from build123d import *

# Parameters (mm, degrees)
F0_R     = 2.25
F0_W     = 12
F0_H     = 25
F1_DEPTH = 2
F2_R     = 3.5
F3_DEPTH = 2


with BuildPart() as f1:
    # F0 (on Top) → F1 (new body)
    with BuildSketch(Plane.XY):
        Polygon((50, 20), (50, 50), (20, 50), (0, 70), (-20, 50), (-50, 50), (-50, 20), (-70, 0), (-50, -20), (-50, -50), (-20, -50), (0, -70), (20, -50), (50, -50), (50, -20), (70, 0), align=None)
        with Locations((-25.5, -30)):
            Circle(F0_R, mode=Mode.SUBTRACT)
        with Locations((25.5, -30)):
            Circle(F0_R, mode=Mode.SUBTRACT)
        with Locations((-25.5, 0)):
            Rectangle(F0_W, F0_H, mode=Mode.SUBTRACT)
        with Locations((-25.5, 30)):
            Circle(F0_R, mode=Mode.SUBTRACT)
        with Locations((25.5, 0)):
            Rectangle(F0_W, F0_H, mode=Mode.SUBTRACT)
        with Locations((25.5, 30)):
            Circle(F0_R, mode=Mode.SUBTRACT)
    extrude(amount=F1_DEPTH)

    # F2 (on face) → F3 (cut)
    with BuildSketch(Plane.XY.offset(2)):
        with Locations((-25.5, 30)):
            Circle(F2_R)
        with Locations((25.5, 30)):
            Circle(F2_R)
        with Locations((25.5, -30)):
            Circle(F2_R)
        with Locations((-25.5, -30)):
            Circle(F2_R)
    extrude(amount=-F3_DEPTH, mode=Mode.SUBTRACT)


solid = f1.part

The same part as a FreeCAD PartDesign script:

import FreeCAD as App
import Part
import Sketcher
from FreeCAD import Vector
Q = App.Units.Quantity


def add_polygon(sketch, points):
    """Adds a closed chain of lines whose ends are joined by coincident constraints."""
    first, n = sketch.GeometryCount, len(points)
    for a, b in zip(points, points[1:] + points[:1]):
        sketch.addGeometry(Part.LineSegment(App.Vector(*a, 0), App.Vector(*b, 0)), False)
    for i in range(n):
        sketch.addConstraint(Sketcher.Constraint("Coincident", first + i, 2, first + (i + 1) % n, 1))

doc = App.newDocument("Part")
body = doc.addObject("PartDesign::Body", "Body")

sketch1 = body.newObject("Sketcher::SketchObject", "Sketch")
sketch1.AttachmentSupport = (doc.getObject("XY_Plane"), [""])
sketch1.MapMode = "FlatFace"
add_polygon(sketch1, [(50, 20), (50, 50), (20, 50), (0, 70), (-20, 50), (-50, 50), (-50, 20), (-70, 0), (-50, -20), (-50, -50), (-20, -50), (0, -70), (20, -50), (50, -50), (50, -20), (70, 0)])
sketch1.addGeometry(Part.Circle(Vector(-25.5, -30, 0), Vector(0, 0, 1), 2.2), False)
sketch1.addGeometry(Part.Circle(Vector(25.5, -30, 0), Vector(0, 0, 1), 2.2), False)
add_polygon(sketch1, [(-19.5, -12.5), (-31.5, -12.5), (-31.5, 12.5), (-19.5, 12.5)])
sketch1.addGeometry(Part.Circle(Vector(-25.5, 30, 0), Vector(0, 0, 1), 2.2), False)
add_polygon(sketch1, [(31.5, -12.5), (19.5, -12.5), (19.5, 12.5), (31.5, 12.5)])
sketch1.addGeometry(Part.Circle(Vector(25.5, 30, 0), Vector(0, 0, 1), 2.2), False)
sketch1.addConstraint(Sketcher.Constraint("Vertical", 0))
sketch1.addConstraint(Sketcher.Constraint("Horizontal", 1))
sketch1.addConstraint(Sketcher.Constraint("Horizontal", 4))
sketch1.addConstraint(Sketcher.Constraint("Vertical", 5))
sketch1.addConstraint(Sketcher.Constraint("Vertical", 8))
sketch1.addConstraint(Sketcher.Constraint("Horizontal", 9))
sketch1.addConstraint(Sketcher.Constraint("Horizontal", 12))
sketch1.addConstraint(Sketcher.Constraint("Vertical", 13))
sketch1.addConstraint(Sketcher.Constraint("Horizontal", 18))
sketch1.addConstraint(Sketcher.Constraint("Vertical", 19))
sketch1.addConstraint(Sketcher.Constraint("Horizontal", 20))
sketch1.addConstraint(Sketcher.Constraint("Vertical", 21))
sketch1.addConstraint(Sketcher.Constraint("Horizontal", 23))
sketch1.addConstraint(Sketcher.Constraint("Vertical", 24))
sketch1.addConstraint(Sketcher.Constraint("Horizontal", 25))
sketch1.addConstraint(Sketcher.Constraint("Vertical", 26))
sketch1.addConstraint(Sketcher.Constraint("Equal", 16, 17))
sketch1.addConstraint(Sketcher.Constraint("Equal", 17, 22))
sketch1.addConstraint(Sketcher.Constraint("Equal", 22, 27))
sketch1.addConstraint(Sketcher.Constraint("Symmetric", 17, 3, 22, 3, -1, 1))
sketch1.addConstraint(Sketcher.Constraint("Symmetric", 16, 3, 27, 3, -1, 1))
sketch1.addConstraint(Sketcher.Constraint("Symmetric", 0, 2, 8, 2, -1, 1))
sketch1.addConstraint(Sketcher.Constraint("Symmetric", 2, 2, 10, 2, -1, 1))
sketch1.addConstraint(Sketcher.Constraint("Symmetric", 3, 2, 11, 2, -1, 1))
sketch1.addConstraint(Sketcher.Constraint("Symmetric", 5, 2, 13, 2, -1, 1))
sketch1.addConstraint(Sketcher.Constraint("Symmetric", 6, 2, 14, 2, -1, 1))
sketch1.addConstraint(Sketcher.Constraint("Symmetric", 20, 2, 23, 2, -1, 1))
sketch1.addConstraint(Sketcher.Constraint("Symmetric", 18, 2, 25, 2, -1, 1))
sketch1.addConstraint(Sketcher.Constraint("Symmetric", 16, 3, 17, 3, -2))
sketch1.addConstraint(Sketcher.Constraint("Symmetric", 1, 2, 3, 2, -2))
sketch1.addConstraint(Sketcher.Constraint("Symmetric", 7, 2, 13, 2, -2))
sketch1.addConstraint(Sketcher.Constraint("PointOnObject", 2, 2, -2))
sketch1.addConstraint(Sketcher.Constraint("PointOnObject", 6, 2, -1))
sketch1.addConstraint(Sketcher.Constraint("Perpendicular", 2, 3))
sketch1.addConstraint(Sketcher.Constraint("Parallel", 3, 6))
sketch1.addConstraint(Sketcher.Constraint("Parallel", 7, 10))
sketch1.addConstraint(Sketcher.Constraint("Perpendicular", 14, 15))
sketch1.addConstraint(Sketcher.Constraint("Horizontal", 21, 2, 23, 2))
sketch1.addConstraint(Sketcher.Constraint("Equal", 12, 0))
sketch1.addConstraint(Sketcher.Constraint("Equal", 3, 6))
sketch1.addConstraint(Sketcher.Constraint("Diameter", 16, Q("4.5 mm")))
sketch1.addConstraint(Sketcher.Constraint("DistanceX", 1, 2, 1, 1, Q("30 mm")))
sketch1.addConstraint(Sketcher.Constraint("DistanceX", 18, 2, 18, 1, Q("12 mm")))
sketch1.addConstraint(Sketcher.Constraint("DistanceY", 19, 1, 19, 2, Q("25 mm")))
sketch1.addConstraint(Sketcher.Constraint("DistanceY", 16, 3, -1, 1, Q("30 mm")))
sketch1.addConstraint(Sketcher.Constraint("DistanceX", -1, 1, 0, 2, Q("50 mm")))
sketch1.addConstraint(Sketcher.Constraint("DistanceX", 16, 3, 17, 3, Q("51 mm")))
sketch1.addConstraint(Sketcher.Constraint("DistanceX", 18, 2, 16, 3, Q("6 mm")))
pad1 = body.newObject("PartDesign::Pad", "Pad")
pad1.Profile = sketch1
pad1.Length = 2

sketch2 = body.newObject("Sketcher::SketchObject", "Sketch001")
sketch2.AttachmentSupport = (doc.getObject("XY_Plane"), [""])
sketch2.MapMode = "FlatFace"
sketch2.AttachmentOffset = App.Placement(Vector(0, 0, 2), App.Rotation())
sketch2.addGeometry(Part.Circle(Vector(-25.5, 30, 0), Vector(0, 0, 1), 3.5), False)
sketch2.addGeometry(Part.Circle(Vector(25.5, 30, 0), Vector(0, 0, 1), 3.5), False)
sketch2.addGeometry(Part.Circle(Vector(25.5, -30, 0), Vector(0, 0, 1), 3.5), False)
sketch2.addGeometry(Part.Circle(Vector(-25.5, -30, 0), Vector(0, 0, 1), 3.5), False)
sketch2.addConstraint(Sketcher.Constraint("Equal", 0, 1))
sketch2.addConstraint(Sketcher.Constraint("Equal", 1, 2))
sketch2.addConstraint(Sketcher.Constraint("Equal", 2, 3))
sketch2.addConstraint(Sketcher.Constraint("Symmetric", 0, 3, 2, 3, -1, 1))
sketch2.addConstraint(Sketcher.Constraint("Symmetric", 1, 3, 3, 3, -1, 1))
sketch2.addConstraint(Sketcher.Constraint("Symmetric", 0, 3, 1, 3, -2))
sketch2.addConstraint(Sketcher.Constraint("Diameter", 0, Q("7 mm")))
sketch2.addConstraint(Sketcher.Constraint("DistanceY", -1, 1, 0, 3, Q("30 mm")))
sketch2.addConstraint(Sketcher.Constraint("DistanceX", 0, 3, 1, 3, Q("51 mm")))
pocket1 = body.newObject("PartDesign::Pocket", "Pocket")
pocket1.Profile = sketch2
pocket1.Length = 2

doc.recompute()
